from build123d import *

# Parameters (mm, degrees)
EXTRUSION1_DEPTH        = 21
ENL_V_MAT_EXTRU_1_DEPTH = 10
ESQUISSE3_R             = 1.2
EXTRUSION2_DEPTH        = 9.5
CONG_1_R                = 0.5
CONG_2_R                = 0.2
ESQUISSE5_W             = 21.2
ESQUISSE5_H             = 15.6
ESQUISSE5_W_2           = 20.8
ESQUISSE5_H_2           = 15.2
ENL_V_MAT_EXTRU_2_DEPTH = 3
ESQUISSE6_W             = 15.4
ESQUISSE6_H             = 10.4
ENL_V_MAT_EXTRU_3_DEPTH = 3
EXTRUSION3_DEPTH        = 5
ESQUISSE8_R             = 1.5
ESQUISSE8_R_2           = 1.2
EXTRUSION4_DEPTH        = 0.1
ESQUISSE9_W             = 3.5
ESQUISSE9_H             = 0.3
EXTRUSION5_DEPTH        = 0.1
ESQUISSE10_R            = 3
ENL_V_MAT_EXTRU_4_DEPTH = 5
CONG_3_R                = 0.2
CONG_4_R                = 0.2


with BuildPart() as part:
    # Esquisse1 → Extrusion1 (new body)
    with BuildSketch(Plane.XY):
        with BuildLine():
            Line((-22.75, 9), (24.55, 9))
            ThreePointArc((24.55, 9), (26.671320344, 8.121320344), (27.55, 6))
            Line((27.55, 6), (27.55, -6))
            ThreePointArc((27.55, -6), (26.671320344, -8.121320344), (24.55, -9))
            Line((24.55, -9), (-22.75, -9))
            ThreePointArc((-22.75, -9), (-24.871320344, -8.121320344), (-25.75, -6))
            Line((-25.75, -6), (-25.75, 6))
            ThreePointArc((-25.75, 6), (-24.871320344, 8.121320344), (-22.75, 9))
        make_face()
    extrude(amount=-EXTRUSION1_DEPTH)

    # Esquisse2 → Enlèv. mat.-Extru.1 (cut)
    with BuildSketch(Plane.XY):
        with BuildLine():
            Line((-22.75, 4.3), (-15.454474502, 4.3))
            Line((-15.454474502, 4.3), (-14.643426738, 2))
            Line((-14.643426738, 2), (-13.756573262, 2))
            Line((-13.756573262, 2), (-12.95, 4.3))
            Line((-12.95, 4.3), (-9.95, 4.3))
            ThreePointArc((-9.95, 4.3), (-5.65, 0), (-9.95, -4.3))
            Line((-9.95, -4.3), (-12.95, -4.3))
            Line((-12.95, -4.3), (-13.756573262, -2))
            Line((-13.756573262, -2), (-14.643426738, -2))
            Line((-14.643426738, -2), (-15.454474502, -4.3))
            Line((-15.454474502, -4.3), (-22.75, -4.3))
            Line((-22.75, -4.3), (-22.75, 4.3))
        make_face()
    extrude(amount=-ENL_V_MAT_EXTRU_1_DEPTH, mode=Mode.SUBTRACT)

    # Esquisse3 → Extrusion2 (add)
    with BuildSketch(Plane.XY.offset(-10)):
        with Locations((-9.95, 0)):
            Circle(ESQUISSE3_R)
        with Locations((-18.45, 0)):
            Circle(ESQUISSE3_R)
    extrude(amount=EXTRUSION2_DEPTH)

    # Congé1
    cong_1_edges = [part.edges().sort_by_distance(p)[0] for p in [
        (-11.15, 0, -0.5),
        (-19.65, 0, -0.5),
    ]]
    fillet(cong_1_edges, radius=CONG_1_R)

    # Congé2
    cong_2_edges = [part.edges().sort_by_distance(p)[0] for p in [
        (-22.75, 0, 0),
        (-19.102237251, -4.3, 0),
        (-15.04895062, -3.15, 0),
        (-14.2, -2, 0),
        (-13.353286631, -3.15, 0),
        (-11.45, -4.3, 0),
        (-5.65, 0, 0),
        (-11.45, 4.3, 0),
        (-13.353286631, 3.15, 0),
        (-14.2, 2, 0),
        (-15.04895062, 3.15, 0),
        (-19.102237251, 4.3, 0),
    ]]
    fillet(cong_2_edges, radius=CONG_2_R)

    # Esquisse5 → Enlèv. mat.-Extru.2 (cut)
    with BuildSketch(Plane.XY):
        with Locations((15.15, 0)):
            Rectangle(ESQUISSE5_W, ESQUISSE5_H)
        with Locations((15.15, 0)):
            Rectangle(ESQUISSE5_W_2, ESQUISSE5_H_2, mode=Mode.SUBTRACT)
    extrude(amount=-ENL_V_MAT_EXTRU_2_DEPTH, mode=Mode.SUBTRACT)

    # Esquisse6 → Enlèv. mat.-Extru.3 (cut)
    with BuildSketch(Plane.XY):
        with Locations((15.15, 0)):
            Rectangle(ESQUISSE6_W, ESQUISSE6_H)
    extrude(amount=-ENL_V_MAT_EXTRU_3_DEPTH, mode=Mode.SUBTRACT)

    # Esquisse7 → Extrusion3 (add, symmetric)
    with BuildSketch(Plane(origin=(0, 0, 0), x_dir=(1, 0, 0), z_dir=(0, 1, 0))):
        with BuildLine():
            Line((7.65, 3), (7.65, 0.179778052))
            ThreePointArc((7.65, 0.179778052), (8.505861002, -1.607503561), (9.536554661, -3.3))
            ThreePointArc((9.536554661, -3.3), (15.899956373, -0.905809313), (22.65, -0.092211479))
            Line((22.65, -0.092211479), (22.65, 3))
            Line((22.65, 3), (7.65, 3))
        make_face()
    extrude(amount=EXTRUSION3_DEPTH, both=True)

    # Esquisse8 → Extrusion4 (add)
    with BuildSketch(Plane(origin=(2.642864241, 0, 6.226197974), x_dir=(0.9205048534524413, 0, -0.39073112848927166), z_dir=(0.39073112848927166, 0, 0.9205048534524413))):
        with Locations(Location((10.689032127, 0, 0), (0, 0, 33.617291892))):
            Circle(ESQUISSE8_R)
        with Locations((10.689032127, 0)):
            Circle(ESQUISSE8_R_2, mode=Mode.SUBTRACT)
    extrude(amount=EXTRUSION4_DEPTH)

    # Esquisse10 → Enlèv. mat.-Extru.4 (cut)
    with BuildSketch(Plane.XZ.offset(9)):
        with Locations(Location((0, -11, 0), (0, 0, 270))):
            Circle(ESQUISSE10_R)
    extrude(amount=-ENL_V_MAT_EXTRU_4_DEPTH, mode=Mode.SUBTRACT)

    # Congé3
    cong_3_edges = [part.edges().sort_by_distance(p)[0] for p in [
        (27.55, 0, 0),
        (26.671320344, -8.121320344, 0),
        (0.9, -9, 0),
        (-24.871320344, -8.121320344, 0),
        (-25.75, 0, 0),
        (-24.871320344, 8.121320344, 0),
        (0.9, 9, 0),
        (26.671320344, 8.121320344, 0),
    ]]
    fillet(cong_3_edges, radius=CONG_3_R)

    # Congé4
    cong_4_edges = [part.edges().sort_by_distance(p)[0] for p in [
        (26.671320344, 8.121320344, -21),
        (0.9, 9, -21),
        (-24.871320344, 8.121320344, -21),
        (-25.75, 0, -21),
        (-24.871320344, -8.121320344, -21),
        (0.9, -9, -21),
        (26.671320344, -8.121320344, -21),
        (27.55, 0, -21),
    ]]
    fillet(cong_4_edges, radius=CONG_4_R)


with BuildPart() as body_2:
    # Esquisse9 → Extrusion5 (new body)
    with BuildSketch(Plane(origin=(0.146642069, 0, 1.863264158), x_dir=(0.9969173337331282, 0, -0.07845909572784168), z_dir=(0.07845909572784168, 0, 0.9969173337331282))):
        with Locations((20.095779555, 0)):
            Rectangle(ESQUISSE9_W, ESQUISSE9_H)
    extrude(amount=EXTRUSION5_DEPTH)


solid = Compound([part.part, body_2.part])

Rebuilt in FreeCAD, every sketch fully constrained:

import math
import FreeCAD as App
import Part
import Sketcher
from FreeCAD import Vector
Q = App.Units.Quantity


def edges_at(feature, points):
    """Names of the edges that pass closest to the given points."""
    edges = feature.Shape.Edges
    near = lambda p: min(range(len(edges)), key=lambda i: edges[i].distToShape(Part.Vertex(*p))[0])
    return sorted({f"Edge{near(p) + 1}" for p in points})


def add_polygon(sketch, points):
    """Adds a closed chain of lines whose ends are joined by coincident constraints."""
    first, n = sketch.GeometryCount, len(points)
    for a, b in zip(points, points[1:] + points[:1]):
        sketch.addGeometry(Part.LineSegment(App.Vector(*a, 0), App.Vector(*b, 0)), False)
    for i in range(n):
        sketch.addConstraint(Sketcher.Constraint("Coincident", first + i, 2, first + (i + 1) % n, 1))

doc = App.newDocument("Part")
params = doc.addObject("Spreadsheet::Sheet", "Params")
for row, (alias, value) in enumerate([
    ("sketch1_radius", "3 mm"),
    ("sketch1_height", "12 mm"),
    ("sketch1_width", "47.3 mm"),
    ("pad1_length", "21 mm"),
    ("sketch2_radius", "4.3 mm"),
    ("sketch2_width", "3 mm"),
    ("pocket1_length", "10 mm"),
    ("sketch3_diameter", "2.4 mm"),
    ("pad2_length", "9.5 mm"),
    ("fillet_radius", "0.5 mm"),
    ("fillet2_radius", "0.2 mm"),
    ("sketch4_width", "21.2 mm"),
    ("sketch4_width2", "20.8 mm"),
    ("sketch4_height", "15.6 mm"),
    ("sketch4_height2", "15.2 mm"),
    ("pocket2_length", "3 mm"),
    ("sketch5_width", "15.4 mm"),
    ("sketch5_height", "10.4 mm"),
    ("pocket3_length", "3 mm"),
    ("sketch6_width", "15 mm"),
    ("pad3_length", "10 mm"),
    ("sketch7_diameter", "3 mm"),
    ("sketch7_diameter2", "2.4 mm"),
    ("pad4_length", "0.1 mm"),
    ("sketch8_diameter", "6 mm"),
    ("pocket4_length", "5 mm"),
    ("fillet3_radius", "0.2 mm"),
    ("fillet4_radius", "0.2 mm"),
    ("sketch9_width", "3.5 mm"),
    ("sketch9_height", "0.3 mm"),
    ("pad5_length", "0.1 mm"),
], start=1):
    params.set(f"A{row}", alias)
    params.set(f"B{row}", "=" + value)
    params.setAlias(f"B{row}", alias)

body = doc.addObject("PartDesign::Body", "Body")

sketch1 = body.newObject("Sketcher::SketchObject", "Sketch")
sketch1.AttachmentSupport = (doc.getObject("XY_Plane"), [""])
sketch1.MapMode = "FlatFace"
sketch1.addGeometry([
    Part.LineSegment(Vector(24.6, 9, 0), Vector(-22.8, 9, 0)),
    Part.ArcOfCircle(Part.Circle(Vector(-22.8, 6, 0), Vector(0, 0, 1), 3), math.radians(90), math.radians(180)),
    Part.LineSegment(Vector(-25.8, 6, 0), Vector(-25.8, -6, 0)),
    Part.ArcOfCircle(Part.Circle(Vector(-22.8, -6, 0), Vector(0, 0, 1), 3), math.radians(180), math.radians(270)),
    Part.LineSegment(Vector(-22.8, -9, 0), Vector(24.6, -9, 0)),
    Part.ArcOfCircle(Part.Circle(Vector(24.6, -6, 0), Vector(0, 0, 1), 3), math.radians(-90), math.radians(0)),
    Part.LineSegment(Vector(27.6, -6, 0), Vector(27.6, 6, 0)),
    Part.ArcOfCircle(Part.Circle(Vector(24.6, 6, 0), Vector(0, 0, 1), 3), math.radians(0), math.radians(90)),
], False)
sketch1.addConstraint([
    Sketcher.Constraint("Tangent", 0, 2, 1, 1),
    Sketcher.Constraint("Tangent", 1, 2, 2, 1),
    Sketcher.Constraint("Tangent", 2, 2, 3, 1),
    Sketcher.Constraint("Tangent", 3, 2, 4, 1),
    Sketcher.Constraint("Tangent", 4, 2, 5, 1),
    Sketcher.Constraint("Tangent", 5, 2, 6, 1),
    Sketcher.Constraint("Tangent", 6, 2, 7, 1),
    Sketcher.Constraint("Tangent", 7, 2, 0, 1),
    Sketcher.Constraint("Horizontal", 0),
    Sketcher.Constraint("Vertical", 2),
    Sketcher.Constraint("Horizontal", 4),
    Sketcher.Constraint("Vertical", 6),
    Sketcher.Constraint("Equal", 1, 3),
    Sketcher.Constraint("Equal", 3, 5),
    Sketcher.Constraint("Equal", 5, 7),
    Sketcher.Constraint("Radius", 1, Q("3 mm")),
    Sketcher.Constraint("DistanceY", 2, 2, 2, 1, Q("12 mm")),
    Sketcher.Constraint("DistanceX", 0, 2, 0, 1, Q("47.3 mm")),
    Sketcher.Constraint("DistanceY", -1, 1, 1, 3, Q("6 mm")),
    Sketcher.Constraint("DistanceX", 1, 3, -1, 1, Q("22.75 mm")),
])
sketch1.setExpression("Constraints[15]", "Params.sketch1_radius")
sketch1.setExpression("Constraints[16]", "Params.sketch1_height")
sketch1.setExpression("Constraints[17]", "Params.sketch1_width")
pad1 = body.newObject("PartDesign::Pad", "Pad")
pad1.Profile = sketch1
pad1.setExpression("Length", "Params.pad1_length")
pad1.Reversed = True

sketch2 = body.newObject("Sketcher::SketchObject", "Sketch001")
sketch2.AttachmentSupport = (doc.getObject("XY_Plane"), [""])
sketch2.MapMode = "FlatFace"
sketch2.addGeometry([
    Part.LineSegment(Vector(-15.5, 4.3, 0), Vector(-22.8, 4.3, 0)),
    Part.LineSegment(Vector(-22.8, 4.3, 0), Vector(-22.8, -4.3, 0)),
    Part.LineSegment(Vector(-22.8, -4.3, 0), Vector(-15.5, -4.3, 0)),
    Part.LineSegment(Vector(-15.5, -4.3, 0), Vector(-14.6, -2, 0)),
    Part.LineSegment(Vector(-14.6, -2, 0), Vector(-13.8, -2, 0)),
    Part.LineSegment(Vector(-13.8, -2, 0), Vector(-12.9, -4.3, 0)),
    Part.LineSegment(Vector(-12.9, -4.3, 0), Vector(-9.9, -4.3, 0)),
    Part.ArcOfCircle(Part.Circle(Vector(-9.9, 0, 0), Vector(0, 0, 1), 4.3), math.radians(-90), math.radians(90)),
    Part.LineSegment(Vector(-9.9, 4.3, 0), Vector(-12.9, 4.3, 0)),
    Part.LineSegment(Vector(-12.9, 4.3, 0), Vector(-13.8, 2, 0)),
    Part.LineSegment(Vector(-13.8, 2, 0), Vector(-14.6, 2, 0)),
    Part.LineSegment(Vector(-14.6, 2, 0), Vector(-15.5, 4.3, 0)),
], False)
sketch2.addConstraint([
    Sketcher.Constraint("Coincident", 0, 2, 1, 1),
    Sketcher.Constraint("Coincident", 1, 2, 2, 1),
    Sketcher.Constraint("Coincident", 2, 2, 3, 1),
    Sketcher.Constraint("Coincident", 3, 2, 4, 1),
    Sketcher.Constraint("Coincident", 4, 2, 5, 1),
    Sketcher.Constraint("Coincident", 5, 2, 6, 1),
    Sketcher.Constraint("Tangent", 6, 2, 7, 1),
    Sketcher.Constraint("Tangent", 7, 2, 8, 1),
    Sketcher.Constraint("Coincident", 8, 2, 9, 1),
    Sketcher.Constraint("Coincident", 9, 2, 10, 1),
    Sketcher.Constraint("Coincident", 10, 2, 11, 1),
    Sketcher.Constraint("Coincident", 11, 2, 0, 1),
    Sketcher.Constraint("Horizontal", 0),
    Sketcher.Constraint("Vertical", 1),
    Sketcher.Constraint("Horizontal", 2),
    Sketcher.Constraint("Horizontal", 4),
    Sketcher.Constraint("Horizontal", 6),
    Sketcher.Constraint("Horizontal", 8),
    Sketcher.Constraint("Horizontal", 10),
    Sketcher.Constraint("Symmetric", 5, 2, 8, 2, -1),
    Sketcher.Constraint("Symmetric", 4, 2, 9, 2, -1),
    Sketcher.Constraint("Symmetric", 2, 2, 11, 2, -1),
    Sketcher.Constraint("Horizontal", 2, 2, 5, 2),
    Sketcher.Constraint("Vertical", 3, 2, 10, 2),
    Sketcher.Constraint("Radius", 7, Q("4.3 mm")),
    Sketcher.Constraint("DistanceX", 6, 1, 6, 2, Q("3 mm")),
    Sketcher.Constraint("DistanceY", 3, 2, -1, 1, Q("2 mm")),
    Sketcher.Constraint("DistanceX", 0, 2, 7, 3, Q("12.8 mm")),
    Sketcher.Constraint("DistanceX", 7, 3, -1, 1, Q("9.95 mm")),
    Sketcher.Constraint("DistanceX", 2, 2, 4, 2, Q("1.697901 mm")),
    Sketcher.Constraint("Distance", 3, Q("2.438811 mm")),
    Sketcher.Constraint("DistanceX", 0, 2, 0, 1, Q("7.295525 mm")),
])
sketch2.setExpression("Constraints[24]", "Params.sketch2_radius")
sketch2.setExpression("Constraints[25]", "Params.sketch2_width")
pocket1 = body.newObject("PartDesign::Pocket", "Pocket")
pocket1.Profile = sketch2
pocket1.setExpression("Length", "Params.pocket1_length")

sketch3 = body.newObject("Sketcher::SketchObject", "Sketch002")
sketch3.AttachmentSupport = (doc.getObject("XY_Plane"), [""])
sketch3.MapMode = "FlatFace"
sketch3.AttachmentOffset = App.Placement(Vector(0, 0, -10), App.Rotation())
sketch3.addGeometry([
    Part.Circle(Vector(-9.9, 0, 0), Vector(0, 0, 1), 1.2),
    Part.Circle(Vector(-18.4, 0, 0), Vector(0, 0, 1), 1.2),
], False)
sketch3.addConstraint([
    Sketcher.Constraint("Equal", 0, 1),
    Sketcher.Constraint("PointOnObject", 0, 3, -1),
    Sketcher.Constraint("PointOnObject", 1, 3, -1),
    Sketcher.Constraint("Diameter", 0, Q("2.4 mm")),
    Sketcher.Constraint("DistanceX", 1, 3, 0, 3, Q("8.5 mm")),
    Sketcher.Constraint("DistanceX", 0, 3, -1, 1, Q("9.95 mm")),
])
sketch3.setExpression("Constraints[3]", "Params.sketch3_diameter")
pad2 = body.newObject("PartDesign::Pad", "Pad001")
pad2.Profile = sketch3
pad2.setExpression("Length", "Params.pad2_length")
doc.recompute()

fillet = body.newObject("PartDesign::Fillet", "Fillet")
fillet.Base = (pad2, edges_at(pad2, [(-11.15, 0, -0.5), (-19.65, 0, -0.5)]))
fillet.setExpression("Radius", "Params.fillet_radius")
doc.recompute()

fillet2 = body.newObject("PartDesign::Fillet", "Fillet001")
fillet2.Base = (fillet, edges_at(fillet, [
    (-22.75, 0, 0),
    (-19.102, -4.3, 0),
    (-15.049, -3.15, 0),
    (-14.2, -2, 0),
    (-13.353, -3.15, 0),
    (-11.45, -4.3, 0),
    (-5.65, 0, 0),
    (-11.45, 4.3, 0),
    (-13.353, 3.15, 0),
    (-14.2, 2, 0),
    (-15.049, 3.15, 0),
    (-19.102, 4.3, 0),
]))
fillet2.setExpression("Radius", "Params.fillet2_radius")

sketch4 = body.newObject("Sketcher::SketchObject", "Sketch003")
sketch4.AttachmentSupport = (doc.getObject("XY_Plane"), [""])
sketch4.MapMode = "FlatFace"
add_polygon(sketch4, [(5, 8), (5, -8), (26, -8), (26, 8)])
add_polygon(sketch4, [(26, -8), (5, -8), (5, 8), (26, 8)])
sketch4.addConstraint([
    Sketcher.Constraint("Vertical", 0),
    Sketcher.Constraint("Horizontal", 1),
    Sketcher.Constraint("Vertical", 2),
    Sketcher.Constraint("Horizontal", 3),
    Sketcher.Constraint("Horizontal", 4),
    Sketcher.Constraint("Vertical", 5),
    Sketcher.Constraint("Horizontal", 6),
    Sketcher.Constraint("Vertical", 7),
    Sketcher.Constraint("DistanceX", 1, 1, 1, 2, Q("21.2 mm")),
    Sketcher.Constraint("DistanceX", 4, 2, 4, 1, Q("20.8 mm")),
    Sketcher.Constraint("DistanceY", 0, 2, 0, 1, Q("15.6 mm")),
    Sketcher.Constraint("DistanceY", 5, 1, 5, 2, Q("15.2 mm")),
    Sketcher.Constraint("DistanceX", 4, 2, 1, 2, Q("21 mm")),
    Sketcher.Constraint("DistanceY", 0, 2, -1, 1, Q("7.8 mm")),
    Sketcher.Constraint("DistanceY", 4, 2, -1, 1, Q("7.6 mm")),
    Sketcher.Constraint("DistanceX", -1, 1, 0, 2, Q("4.55 mm")),
])
sketch4.setExpression("Constraints[16]", "Params.sketch4_width")
sketch4.setExpression("Constraints[17]", "Params.sketch4_width2")
sketch4.setExpression("Constraints[18]", "Params.sketch4_height")
sketch4.setExpression("Constraints[19]", "Params.sketch4_height2")
pocket2 = body.newObject("PartDesign::Pocket", "Pocket001")
pocket2.Profile = sketch4
pocket2.setExpression("Length", "Params.pocket2_length")

sketch5 = body.newObject("Sketcher::SketchObject", "Sketch004")
sketch5.AttachmentSupport = (doc.getObject("XY_Plane"), [""])
sketch5.MapMode = "FlatFace"
add_polygon(sketch5, [(7, 5), (7, -5), (23, -5), (23, 5)])
sketch5.addConstraint([
    Sketcher.Constraint("Vertical", 0),
    Sketcher.Constraint("Horizontal", 1),
    Sketcher.Constraint("Vertical", 2),
    Sketcher.Constraint("Horizontal", 3),
    Sketcher.Constraint("DistanceX", 1, 1, 1, 2, Q("15.4 mm")),
    Sketcher.Constraint("DistanceY", 0, 2, 0, 1, Q("10.4 mm")),
    Sketcher.Constraint("DistanceY", 0, 2, -1, 1, Q("5.2 mm")),
    Sketcher.Constraint("DistanceX", -1, 1, 0, 2, Q("7.45 mm")),
])
sketch5.setExpression("Constraints[8]", "Params.sketch5_width")
sketch5.setExpression("Constraints[9]", "Params.sketch5_height")
pocket3 = body.newObject("PartDesign::Pocket", "Pocket002")
pocket3.Profile = sketch5
pocket3.setExpression("Length", "Params.pocket3_length")

sketch6 = body.newObject("Sketcher::SketchObject", "Sketch005")
sketch6.AttachmentSupport = (doc.getObject("XZ_Plane"), [""])
sketch6.MapMode = "FlatFace"
sketch6.addGeometry([
    Part.LineSegment(Vector(7.7, -3, 0), Vector(7.7, -0.2, 0)),
    Part.ArcOfCircle(Part.Circle(Vector(25.9, -7.8, 0), Vector(0, 0, 1), 19.7), math.radians(145.78), math.radians(157.29)),
    Part.ArcOfCircle(Part.Circle(Vector(22.7, 28.5, 0), Vector(0, 0, 1), 28.4), math.radians(-117), math.radians(-90)),
    Part.LineSegment(Vector(22.6, 0.1, 0), Vector(22.6, -3, 0)),
    Part.LineSegment(Vector(22.6, -3, 0), Vector(7.7, -3, 0)),
], False)
sketch6.addConstraint([
    Sketcher.Constraint("Coincident", 0, 2, 1, 2),
    Sketcher.Constraint("Coincident", 1, 1, 2, 1),
    Sketcher.Constraint("Coincident", 2, 2, 3, 1),
    Sketcher.Constraint("Coincident", 3, 2, 4, 1),
    Sketcher.Constraint("Coincident", 4, 2, 0, 1),
    Sketcher.Constraint("Vertical", 0),
    Sketcher.Constraint("Vertical", 3),
    Sketcher.Constraint("Horizontal", 4),
    Sketcher.Constraint("DistanceX", 4, 2, 4, 1, Q("15 mm")),
    Sketcher.Constraint("DistanceY", 3, 2, -1, 1, Q("3 mm")),
    Sketcher.Constraint("DistanceX", 0, 2, 2, 3, Q("15 mm")),
    Sketcher.Constraint("DistanceY", -1, 1, 2, 3, Q("28.5 mm")),
    Sketcher.Constraint("DistanceY", -1, 1, 1, 1, Q("3.3 mm")),
    Sketcher.Constraint("DistanceX", -1, 1, 2, 3, Q("22.65 mm")),
    Sketcher.Constraint("Radius", 1, Q("19.745581 mm")),
    Sketcher.Constraint("Radius", 2, Q("28.407789 mm")),
    Sketcher.Constraint("DistanceY", 0, 1, 0, 2, Q("2.820222 mm")),
])
sketch6.setExpression("Constraints[8]", "Params.sketch6_width")
pad3 = body.newObject("PartDesign::Pad", "Pad002")
pad3.Profile = sketch6
pad3.setExpression("Length", "Params.pad3_length")
pad3.Midplane = True

sketch7 = body.newObject("Sketcher::SketchObject", "Sketch006")
sketch7.Placement = App.Placement(Vector(2.642864, 0, 6.226198), App.Rotation(Vector(0.920504853, 0, -0.390731128), Vector(0, 0.999999999, 0), Vector(0.390731128, 0, 0.920504853), "ZXY"))
sketch7.addGeometry([
    Part.Circle(Vector(10.7, 0, 0), Vector(0, 0, 1), 1.5),
    Part.Circle(Vector(10.7, 0, 0), Vector(0, 0, 1), 1.2),
], False)
sketch7.addConstraint([
    Sketcher.Constraint("Coincident", 1, 3, 0, 3),
    Sketcher.Constraint("PointOnObject", 0, 3, -1),
    Sketcher.Constraint("Diameter", 0, Q("3 mm")),
    Sketcher.Constraint("Diameter", 1, Q("2.4 mm")),
    Sketcher.Constraint("DistanceX", -1, 1, 0, 3, Q("10.689032 mm")),
])
sketch7.setExpression("Constraints[2]", "Params.sketch7_diameter")
sketch7.setExpression("Constraints[3]", "Params.sketch7_diameter2")
pad4 = body.newObject("PartDesign::Pad", "Pad003")
pad4.Profile = sketch7
pad4.setExpression("Length", "Params.pad4_length")

sketch8 = body.newObject("Sketcher::SketchObject", "Sketch007")
sketch8.AttachmentSupport = (doc.getObject("XZ_Plane"), [""])
sketch8.MapMode = "FlatFace"
sketch8.AttachmentOffset = App.Placement(Vector(0, 0, 9), App.Rotation())
sketch8.addGeometry(Part.Circle(Vector(0, -11, 0), Vector(0, 0, 1), 3), False)
sketch8.addConstraint([
    Sketcher.Constraint("PointOnObject", 0, 3, -2),
    Sketcher.Constraint("Diameter", 0, Q("6 mm")),
    Sketcher.Constraint("DistanceY", 0, 3, -1, 1, Q("11 mm")),
])
sketch8.setExpression("Constraints[1]", "Params.sketch8_diameter")
pocket4 = body.newObject("PartDesign::Pocket", "Pocket003")
pocket4.Profile = sketch8
pocket4.setExpression("Length", "Params.pocket4_length")
doc.recompute()

fillet3 = body.newObject("PartDesign::Fillet", "Fillet002")
fillet3.Base = (pocket4, edges_at(pocket4, [
    (27.55, 0, 0),
    (26.671, -8.121, 0),
    (0.9, -9, 0),
    (-24.871, -8.121, 0),
    (-25.75, 0, 0),
    (-24.871, 8.121, 0),
    (0.9, 9, 0),
    (26.671, 8.121, 0),
]))
fillet3.setExpression("Radius", "Params.fillet3_radius")
doc.recompute()

fillet4 = body.newObject("PartDesign::Fillet", "Fillet003")
fillet4.Base = (fillet3, edges_at(fillet3, [
    (26.671, 8.121, -21),
    (0.9, 9, -21),
    (-24.871, 8.121, -21),
    (-25.75, 0, -21),
    (-24.871, -8.121, -21),
    (0.9, -9, -21),
    (26.671, -8.121, -21),
    (27.55, 0, -21),
]))
fillet4.setExpression("Radius", "Params.fillet4_radius")
body2 = doc.addObject("PartDesign::Body", "Body001")

sketch9 = body2.newObject("Sketcher::SketchObject", "Sketch008")
sketch9.Placement = App.Placement(Vector(0.146642, 0, 1.863264), App.Rotation(Vector(0.996917334, 0, -0.078459096), Vector(0, 1.000000001, 0), Vector(0.078459096, 0, 0.996917334), "ZXY"))
add_polygon(sketch9, [(18.35, 0.15), (18.35, -0.15), (21.85, -0.15), (21.85, 0.15)])
sketch9.addConstraint([
    Sketcher.Constraint("Vertical", 0),
    Sketcher.Constraint("Horizontal", 1),
    Sketcher.Constraint("Vertical", 2),
    Sketcher.Constraint("Horizontal", 3),
    Sketcher.Constraint("DistanceX", 1, 1, 1, 2, Q("3.5 mm")),
    Sketcher.Constraint("DistanceY", 0, 2, 0, 1, Q("0.3 mm")),
    Sketcher.Constraint("DistanceY", 0, 2, -1, 1, Q("0.15 mm")),
    Sketcher.Constraint("DistanceX", -1, 1, 0, 2, Q("18.34578 mm")),
])
sketch9.setExpression("Constraints[8]", "Params.sketch9_width")
sketch9.setExpression("Constraints[9]", "Params.sketch9_height")
pad5 = body2.newObject("PartDesign::Pad", "Pad004")
pad5.Profile = sketch9
pad5.setExpression("Length", "Params.pad5_length")

doc.recompute()
